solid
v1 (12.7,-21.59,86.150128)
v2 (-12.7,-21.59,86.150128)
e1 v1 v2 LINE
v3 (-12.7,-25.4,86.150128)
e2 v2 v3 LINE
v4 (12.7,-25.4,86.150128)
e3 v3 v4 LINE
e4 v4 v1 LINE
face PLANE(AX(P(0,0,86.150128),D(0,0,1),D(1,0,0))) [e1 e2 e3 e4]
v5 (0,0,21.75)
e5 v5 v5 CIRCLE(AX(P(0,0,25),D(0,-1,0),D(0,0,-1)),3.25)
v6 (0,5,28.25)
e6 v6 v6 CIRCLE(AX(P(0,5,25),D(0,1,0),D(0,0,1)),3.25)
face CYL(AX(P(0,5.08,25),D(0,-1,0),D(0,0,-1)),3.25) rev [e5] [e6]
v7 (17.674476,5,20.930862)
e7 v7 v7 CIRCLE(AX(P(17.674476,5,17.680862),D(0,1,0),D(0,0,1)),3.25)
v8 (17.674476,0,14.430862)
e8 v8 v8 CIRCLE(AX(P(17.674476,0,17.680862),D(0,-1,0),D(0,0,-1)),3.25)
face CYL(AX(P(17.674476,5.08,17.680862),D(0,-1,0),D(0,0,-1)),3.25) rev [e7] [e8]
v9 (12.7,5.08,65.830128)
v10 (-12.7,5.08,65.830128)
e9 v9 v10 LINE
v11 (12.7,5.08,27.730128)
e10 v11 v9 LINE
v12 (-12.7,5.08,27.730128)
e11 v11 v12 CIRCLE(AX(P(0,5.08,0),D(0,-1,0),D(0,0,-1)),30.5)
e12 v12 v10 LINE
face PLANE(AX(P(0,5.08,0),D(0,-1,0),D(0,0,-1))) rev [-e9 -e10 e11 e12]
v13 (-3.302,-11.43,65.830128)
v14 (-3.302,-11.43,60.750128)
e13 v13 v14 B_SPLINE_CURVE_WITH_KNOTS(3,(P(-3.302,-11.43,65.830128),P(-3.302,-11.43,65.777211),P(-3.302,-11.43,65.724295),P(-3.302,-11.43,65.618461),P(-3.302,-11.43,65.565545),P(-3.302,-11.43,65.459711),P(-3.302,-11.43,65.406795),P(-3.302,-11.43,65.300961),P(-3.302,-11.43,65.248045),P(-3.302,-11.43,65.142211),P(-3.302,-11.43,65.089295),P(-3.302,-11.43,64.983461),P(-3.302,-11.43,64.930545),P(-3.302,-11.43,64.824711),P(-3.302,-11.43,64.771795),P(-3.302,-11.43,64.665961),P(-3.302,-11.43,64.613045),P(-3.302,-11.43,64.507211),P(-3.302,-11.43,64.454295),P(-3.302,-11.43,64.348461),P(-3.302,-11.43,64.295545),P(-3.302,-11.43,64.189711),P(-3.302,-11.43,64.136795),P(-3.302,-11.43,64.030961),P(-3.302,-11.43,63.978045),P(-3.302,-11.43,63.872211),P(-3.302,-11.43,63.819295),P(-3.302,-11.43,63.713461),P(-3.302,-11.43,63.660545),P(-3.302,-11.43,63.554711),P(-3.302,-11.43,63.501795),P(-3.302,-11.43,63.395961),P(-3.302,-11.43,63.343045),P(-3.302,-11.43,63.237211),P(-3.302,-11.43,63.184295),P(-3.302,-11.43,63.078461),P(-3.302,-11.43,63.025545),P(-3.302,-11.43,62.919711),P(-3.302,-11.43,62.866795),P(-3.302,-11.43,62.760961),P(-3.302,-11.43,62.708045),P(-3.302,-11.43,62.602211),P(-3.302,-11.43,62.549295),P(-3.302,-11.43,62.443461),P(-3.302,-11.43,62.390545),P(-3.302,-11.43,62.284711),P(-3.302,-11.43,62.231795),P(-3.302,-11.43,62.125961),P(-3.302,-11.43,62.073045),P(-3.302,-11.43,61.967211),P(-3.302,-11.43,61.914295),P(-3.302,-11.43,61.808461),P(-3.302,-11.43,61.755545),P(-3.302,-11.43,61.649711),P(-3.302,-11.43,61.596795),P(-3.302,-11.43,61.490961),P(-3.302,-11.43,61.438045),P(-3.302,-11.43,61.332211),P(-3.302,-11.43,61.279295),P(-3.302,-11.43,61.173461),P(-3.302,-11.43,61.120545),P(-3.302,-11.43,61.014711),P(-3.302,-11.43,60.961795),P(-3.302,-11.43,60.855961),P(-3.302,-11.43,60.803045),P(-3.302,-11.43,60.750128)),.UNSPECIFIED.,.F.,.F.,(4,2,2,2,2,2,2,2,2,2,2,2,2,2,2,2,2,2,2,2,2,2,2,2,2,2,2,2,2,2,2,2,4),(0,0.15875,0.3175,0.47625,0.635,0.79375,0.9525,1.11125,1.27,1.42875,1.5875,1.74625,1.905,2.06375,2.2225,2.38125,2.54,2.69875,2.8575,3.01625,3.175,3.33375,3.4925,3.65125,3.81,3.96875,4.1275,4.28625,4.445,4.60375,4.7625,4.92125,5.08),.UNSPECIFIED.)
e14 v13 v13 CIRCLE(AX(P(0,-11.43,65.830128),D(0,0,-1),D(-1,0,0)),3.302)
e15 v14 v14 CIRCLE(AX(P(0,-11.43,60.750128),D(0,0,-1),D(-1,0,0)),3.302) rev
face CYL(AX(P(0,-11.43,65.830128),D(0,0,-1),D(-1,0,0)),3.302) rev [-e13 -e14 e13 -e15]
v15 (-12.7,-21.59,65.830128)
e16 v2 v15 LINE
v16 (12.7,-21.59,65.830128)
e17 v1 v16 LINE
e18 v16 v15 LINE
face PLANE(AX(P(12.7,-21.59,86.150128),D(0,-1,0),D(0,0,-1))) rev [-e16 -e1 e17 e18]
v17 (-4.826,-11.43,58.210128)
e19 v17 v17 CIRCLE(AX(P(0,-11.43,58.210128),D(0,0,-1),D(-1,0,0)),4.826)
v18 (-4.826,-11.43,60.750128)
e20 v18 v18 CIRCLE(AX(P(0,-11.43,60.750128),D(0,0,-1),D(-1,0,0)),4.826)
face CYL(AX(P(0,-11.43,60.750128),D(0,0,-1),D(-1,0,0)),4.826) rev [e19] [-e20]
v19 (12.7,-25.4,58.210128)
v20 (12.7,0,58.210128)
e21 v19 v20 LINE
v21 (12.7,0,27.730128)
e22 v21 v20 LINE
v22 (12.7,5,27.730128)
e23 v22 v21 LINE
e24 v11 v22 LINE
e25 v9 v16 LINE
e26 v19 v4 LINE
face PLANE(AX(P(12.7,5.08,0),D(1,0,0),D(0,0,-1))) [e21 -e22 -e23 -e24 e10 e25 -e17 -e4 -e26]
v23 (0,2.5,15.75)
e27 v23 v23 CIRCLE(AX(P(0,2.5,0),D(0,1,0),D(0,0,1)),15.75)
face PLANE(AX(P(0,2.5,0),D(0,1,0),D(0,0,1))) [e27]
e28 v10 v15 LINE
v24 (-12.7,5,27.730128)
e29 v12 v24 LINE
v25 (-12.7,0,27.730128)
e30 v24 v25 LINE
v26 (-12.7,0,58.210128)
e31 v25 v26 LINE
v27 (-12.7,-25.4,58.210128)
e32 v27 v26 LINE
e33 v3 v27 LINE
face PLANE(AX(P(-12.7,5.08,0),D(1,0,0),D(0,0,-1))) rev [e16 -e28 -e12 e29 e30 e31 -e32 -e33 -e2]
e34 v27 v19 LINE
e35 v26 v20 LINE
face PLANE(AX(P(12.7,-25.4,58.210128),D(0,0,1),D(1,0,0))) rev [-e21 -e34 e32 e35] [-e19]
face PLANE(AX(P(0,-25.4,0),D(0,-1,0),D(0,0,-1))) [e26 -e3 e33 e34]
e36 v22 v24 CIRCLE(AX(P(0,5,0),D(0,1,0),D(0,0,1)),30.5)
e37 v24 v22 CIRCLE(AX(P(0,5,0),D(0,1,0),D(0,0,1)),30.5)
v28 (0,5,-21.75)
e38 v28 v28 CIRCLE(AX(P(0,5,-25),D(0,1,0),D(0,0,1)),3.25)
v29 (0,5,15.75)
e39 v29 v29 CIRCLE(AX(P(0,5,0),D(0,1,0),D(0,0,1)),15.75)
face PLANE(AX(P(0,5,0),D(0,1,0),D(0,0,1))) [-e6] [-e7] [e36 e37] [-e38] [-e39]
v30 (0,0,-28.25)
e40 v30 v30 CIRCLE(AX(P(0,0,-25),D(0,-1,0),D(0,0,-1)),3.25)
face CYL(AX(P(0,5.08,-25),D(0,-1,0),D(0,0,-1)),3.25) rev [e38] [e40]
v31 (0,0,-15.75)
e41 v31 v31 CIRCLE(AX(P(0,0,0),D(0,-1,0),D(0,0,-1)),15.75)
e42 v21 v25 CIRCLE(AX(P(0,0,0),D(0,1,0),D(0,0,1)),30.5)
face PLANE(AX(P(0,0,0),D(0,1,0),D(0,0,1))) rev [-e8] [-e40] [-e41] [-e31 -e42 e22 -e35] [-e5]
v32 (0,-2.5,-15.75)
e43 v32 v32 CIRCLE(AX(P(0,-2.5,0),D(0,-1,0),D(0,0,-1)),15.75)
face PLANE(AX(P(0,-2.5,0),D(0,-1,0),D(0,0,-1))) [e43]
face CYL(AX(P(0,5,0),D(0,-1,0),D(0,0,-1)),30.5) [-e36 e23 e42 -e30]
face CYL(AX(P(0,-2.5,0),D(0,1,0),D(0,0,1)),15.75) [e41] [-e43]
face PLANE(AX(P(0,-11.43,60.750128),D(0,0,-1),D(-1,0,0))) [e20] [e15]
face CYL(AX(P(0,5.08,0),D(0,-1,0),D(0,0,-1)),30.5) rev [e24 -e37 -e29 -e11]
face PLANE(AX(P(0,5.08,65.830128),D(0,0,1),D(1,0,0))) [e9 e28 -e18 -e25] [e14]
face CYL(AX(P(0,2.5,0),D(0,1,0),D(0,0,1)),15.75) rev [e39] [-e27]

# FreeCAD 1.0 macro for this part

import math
import FreeCAD as App
import Part
import Sketcher
Q = App.Units.Quantity

doc = App.newDocument("Part")
body = doc.addObject("PartDesign::Body", "Body")

# Sketch on XZ plane
sketch1 = body.newObject("Sketcher::SketchObject", "Sketch")
sketch1.AttachmentSupport = (doc.getObject("XZ_Plane"), [""])
sketch1.MapMode = "FlatFace"
sketch1.addGeometry(Part.Circle(App.Vector(0, 0, 0), App.Vector(0, 0, 1), 30.5), False)
sketch1.addConstraint([
    Sketcher.Constraint("Coincident", 0, 3, -1, 1),
    Sketcher.Constraint("Diameter", 0, Q("61 mm")),
])
pad1 = body.newObject("PartDesign::Pad", "Pad")
pad1.Profile = sketch1
pad1.Length = 5
pad1.Reversed = True

# Sketch on XZ plane
sketch2 = body.newObject("Sketcher::SketchObject", "Sketch001")
sketch2.AttachmentSupport = (doc.getObject("XZ_Plane"), [""])
sketch2.MapMode = "FlatFace"
sketch2.AttachmentOffset = App.Placement(App.Vector(0, 0, -5), App.Rotation())
sketch2.addGeometry(Part.Circle(App.Vector(0, 0, 0), App.Vector(0, 0, 1), 15.75), False)
sketch2.addConstraint([
    Sketcher.Constraint("Coincident", 0, 3, -1, 1),
    Sketcher.Constraint("Diameter", 0, Q("31.5 mm")),
])
pocket1 = body.newObject("PartDesign::Pocket", "Pocket")
pocket1.Profile = sketch2
pocket1.Length = 2.5
pocket1.Reversed = True

# Sketch on XZ plane
sketch3 = body.newObject("Sketcher::SketchObject", "Sketch002")
sketch3.AttachmentSupport = (doc.getObject("XZ_Plane"), [""])
sketch3.MapMode = "FlatFace"
sketch3.addGeometry(Part.Circle(App.Vector(0, 0, 0), App.Vector(0, 0, 1), 15.75), False)
sketch3.addConstraint([
    Sketcher.Constraint("Coincident", 0, 3, -1, 1),
    Sketcher.Constraint("Diameter", 0, Q("31.5 mm")),
])
pad2 = body.newObject("PartDesign::Pad", "Pad001")
pad2.Profile = sketch3
pad2.Length = 2.5

# Sketch on XZ plane
sketch4 = body.newObject("Sketcher::SketchObject", "Sketch003")
sketch4.AttachmentSupport = (doc.getObject("XZ_Plane"), [""])
sketch4.MapMode = "FlatFace"
sketch4.addGeometry(Part.Circle(App.Vector(0, -25, 0), App.Vector(0, 0, 1), 3.25), False)
sketch4.addConstraint([
    Sketcher.Constraint("PointOnObject", 0, 3, -2),
    Sketcher.Constraint("Diameter", 0, Q("6.5 mm")),
    Sketcher.Constraint("DistanceY", 0, 3, -1, 1, Q("25 mm")),
])
pocket2 = body.newObject("PartDesign::Pocket", "Pocket001")
pocket2.Profile = sketch4
pocket2.Length = Q("0.2 in")

# Sketch on XZ plane
sketch5 = body.newObject("Sketcher::SketchObject", "Sketch004")
sketch5.AttachmentSupport = (doc.getObject("XZ_Plane"), [""])
sketch5.MapMode = "FlatFace"
sketch5.addGeometry(Part.Circle(App.Vector(0, 25, 0), App.Vector(0, 0, 1), 3.25), False)
sketch5.addConstraint([
    Sketcher.Constraint("PointOnObject", 0, 3, -2),
    Sketcher.Constraint("Diameter", 0, Q("6.5 mm")),
    Sketcher.Constraint("DistanceY", -1, 1, 0, 3, Q("25 mm")),
])
pocket3 = body.newObject("PartDesign::Pocket", "Pocket002")
pocket3.Profile = sketch5
pocket3.Length = Q("0.2 in")

# Sketch on XZ plane
sketch6 = body.newObject("Sketcher::SketchObject", "Sketch005")
sketch6.AttachmentSupport = (doc.getObject("XZ_Plane"), [""])
sketch6.MapMode = "FlatFace"
sketch6.addGeometry(Part.Circle(App.Vector(17.674476, 17.680862, 0), App.Vector(0, 0, 1), 3.25), False)
sketch6.addConstraint([
    Sketcher.Constraint("Diameter", 0, Q("6.5 mm")),
    Sketcher.Constraint("DistanceX", -1, 1, 0, 3, Q("17.674476 mm")),
    Sketcher.Constraint("DistanceY", -1, 1, 0, 3, Q("17.680862 mm")),
])
pocket4 = body.newObject("PartDesign::Pocket", "Pocket003")
pocket4.Profile = sketch6
pocket4.Length = Q("0.2 in")

# Sketch on XZ plane
sketch7 = body.newObject("Sketcher::SketchObject", "Sketch006")
sketch7.AttachmentSupport = (doc.getObject("XZ_Plane"), [""])
sketch7.MapMode = "FlatFace"
sketch7.addGeometry([
    Part.ArcOfCircle(Part.Circle(App.Vector(0, 0, 0), App.Vector(0, 0, 1), 30.5), math.radians(90), math.radians(114.607099)),  # 0
    Part.ArcOfCircle(Part.Circle(App.Vector(0, 0, 0), App.Vector(0, 0, 1), 30.5), math.radians(65.392901), math.radians(90)),  # 1
    Part.LineSegment(App.Vector(12.7, 27.730128, 0), App.Vector(12.7, 65.830128, 0)),  # 2
    Part.LineSegment(App.Vector(12.7, 65.830128, 0), App.Vector(-12.7, 65.830128, 0)),  # 3
    Part.LineSegment(App.Vector(-12.7, 65.830128, 0), App.Vector(-12.7, 27.730128, 0)),  # 4
], False)
sketch7.addConstraint([
    Sketcher.Constraint("Tangent", 0, 1, 1, 2),
    Sketcher.Constraint("Coincident", 1, 1, 2, 1),
    Sketcher.Constraint("Coincident", 2, 2, 3, 1),
    Sketcher.Constraint("Coincident", 3, 2, 4, 1),
    Sketcher.Constraint("Coincident", 4, 2, 0, 2),
    Sketcher.Constraint("Vertical", 2),
    Sketcher.Constraint("Horizontal", 3),
    Sketcher.Constraint("Vertical", 4),
    Sketcher.Constraint("Coincident", 0, 3, -1, 1),
    Sketcher.Constraint("Equal", 0, 1),
    Sketcher.Constraint("PointOnObject", 0, 1, -2),
    Sketcher.Constraint("Horizontal", 1, 1, 4, 2),
    Sketcher.Constraint("DistanceX", 3, 2, 3, 1, Q("1 in")),
    Sketcher.Constraint("DistanceY", 2, 1, 2, 2, Q("1.5 in")),
    Sketcher.Constraint("Radius", 0, Q("30.5 mm")),
])
pad3 = body.newObject("PartDesign::Pad", "Pad002")
pad3.Profile = sketch7
pad3.Length = Q("0.2 in")
pad3.Reversed = True

# Sketch on XZ plane
sketch8 = body.newObject("Sketcher::SketchObject", "Sketch007")
sketch8.AttachmentSupport = (doc.getObject("XZ_Plane"), [""])
sketch8.MapMode = "FlatFace"
sketch8.addGeometry([
    Part.LineSegment(App.Vector(-12.7, 65.830128, 0), App.Vector(-12.7, 58.210128, 0)),
    Part.LineSegment(App.Vector(-12.7, 58.210128, 0), App.Vector(12.7, 58.210128, 0)),
    Part.LineSegment(App.Vector(12.7, 58.210128, 0), App.Vector(12.7, 65.830128, 0)),
    Part.LineSegment(App.Vector(12.7, 65.830128, 0), App.Vector(-12.7, 65.830128, 0)),
], False)
sketch8.addConstraint([
    Sketcher.Constraint("Coincident", 0, 2, 1, 1),
    Sketcher.Constraint("Coincident", 1, 2, 2, 1),
    Sketcher.Constraint("Coincident", 2, 2, 3, 1),
    Sketcher.Constraint("Coincident", 3, 2, 0, 1),
    Sketcher.Constraint("Vertical", 0),
    Sketcher.Constraint("Horizontal", 1),
    Sketcher.Constraint("Vertical", 2),
    Sketcher.Constraint("Horizontal", 3),
    Sketcher.Constraint("DistanceX", 1, 1, 1, 2, Q("1 in")),
    Sketcher.Constraint("DistanceY", 0, 2, 0, 1, Q("0.3 in")),
    Sketcher.Constraint("DistanceX", 0, 2, -1, 1, Q("0.5 in")),
    Sketcher.Constraint("DistanceY", -1, 1, 0, 2, Q("58.210128 mm")),
])
pad4 = body.newObject("PartDesign::Pad", "Pad003")
pad4.Profile = sketch8
pad4.Length = Q("1 in")

# Sketch on XY plane
sketch9 = body.newObject("Sketcher::SketchObject", "Sketch008")
sketch9.AttachmentSupport = (doc.getObject("XY_Plane"), [""])
sketch9.MapMode = "FlatFace"
sketch9.AttachmentOffset = App.Placement(App.Vector(0, 0, 65.830128), App.Rotation())
sketch9.addGeometry([
    Part.LineSegment(App.Vector(-12.7, -21.59, 0), App.Vector(-12.7, -25.4, 0)),
    Part.LineSegment(App.Vector(-12.7, -25.4, 0), App.Vector(12.7, -25.4, 0)),
    Part.LineSegment(App.Vector(12.7, -25.4, 0), App.Vector(12.7, -21.59, 0)),
    Part.LineSegment(App.Vector(12.7, -21.59, 0), App.Vector(-12.7, -21.59, 0)),
], False)
sketch9.addConstraint([
    Sketcher.Constraint("Coincident", 0, 2, 1, 1),
    Sketcher.Constraint("Coincident", 1, 2, 2, 1),
    Sketcher.Constraint("Coincident", 2, 2, 3, 1),
    Sketcher.Constraint("Coincident", 3, 2, 0, 1),
    Sketcher.Constraint("Vertical", 0),
    Sketcher.Constraint("Horizontal", 1),
    Sketcher.Constraint("Vertical", 2),
    Sketcher.Constraint("Horizontal", 3),
    Sketcher.Constraint("DistanceX", 1, 1, 1, 2, Q("1 in")),
    Sketcher.Constraint("DistanceY", 0, 2, -1, 1, Q("1 in")),
    Sketcher.Constraint("DistanceY", 0, 2, 0, 1, Q("0.15 in")),
    Sketcher.Constraint("DistanceX", 0, 2, -1, 1, Q("0.5 in")),
])
pad5 = body.newObject("PartDesign::Pad", "Pad004")
pad5.Profile = sketch9
pad5.Length = Q("0.8 in")

# Sketch on XY plane
sketch10 = body.newObject("Sketcher::SketchObject", "Sketch009")
sketch10.AttachmentSupport = (doc.getObject("XY_Plane"), [""])
sketch10.MapMode = "FlatFace"
sketch10.AttachmentOffset = App.Placement(App.Vector(0, 0, 58.210128), App.Rotation())
sketch10.addGeometry([
    Part.ArcOfCircle(Part.Circle(App.Vector(0, -11.43, 0), App.Vector(0, 0, 1), 3.302), math.radians(-90), math.radians(90)),
    Part.ArcOfCircle(Part.Circle(App.Vector(0, -11.43, 0), App.Vector(0, 0, 1), 3.302), math.radians(-180), math.radians(-90)),
    Part.ArcOfCircle(Part.Circle(App.Vector(0, -11.43, 0), App.Vector(0, 0, 1), 3.302), math.radians(90), math.radians(180)),
], False)
sketch10.addConstraint([
    Sketcher.Constraint("Tangent", 0, 1, 1, 2),
    Sketcher.Constraint("Tangent", 1, 1, 2, 2),
    Sketcher.Constraint("Tangent", 2, 1, 0, 2),
    Sketcher.Constraint("PointOnObject", 0, 3, -2),
    Sketcher.Constraint("PointOnObject", 0, 1, -2),
    Sketcher.Constraint("PointOnObject", 2, 1, -2),
    Sketcher.Constraint("Horizontal", 2, 3, 1, 1),
    Sketcher.Constraint("Radius", 0, Q("0.13 in")),
    Sketcher.Constraint("DistanceY", 0, 3, -1, 1, Q("0.45 in")),
])
pocket5 = body.newObject("PartDesign::Pocket", "Pocket004")
pocket5.Profile = sketch10
pocket5.Length = Q("0.3 in")
pocket5.Reversed = True

# Sketch on XY plane
sketch11 = body.newObject("Sketcher::SketchObject", "Sketch010")
sketch11.AttachmentSupport = (doc.getObject("XY_Plane"), [""])
sketch11.MapMode = "FlatFace"
sketch11.AttachmentOffset = App.Placement(App.Vector(0, 0, 58.210128), App.Rotation())
sketch11.addGeometry(Part.Circle(App.Vector(0, -11.43, 0), App.Vector(0, 0, 1), 4.826), False)
sketch11.addConstraint([
    Sketcher.Constraint("PointOnObject", 0, 3, -2),
    Sketcher.Constraint("Diameter", 0, Q("0.38 in")),
    Sketcher.Constraint("DistanceY", 0, 3, -1, 1, Q("0.45 in")),
])
pocket6 = body.newObject("PartDesign::Pocket", "Pocket005")
pocket6.Profile = sketch11
pocket6.Length = Q("0.1 in")
pocket6.Reversed = True

doc.recompute()
